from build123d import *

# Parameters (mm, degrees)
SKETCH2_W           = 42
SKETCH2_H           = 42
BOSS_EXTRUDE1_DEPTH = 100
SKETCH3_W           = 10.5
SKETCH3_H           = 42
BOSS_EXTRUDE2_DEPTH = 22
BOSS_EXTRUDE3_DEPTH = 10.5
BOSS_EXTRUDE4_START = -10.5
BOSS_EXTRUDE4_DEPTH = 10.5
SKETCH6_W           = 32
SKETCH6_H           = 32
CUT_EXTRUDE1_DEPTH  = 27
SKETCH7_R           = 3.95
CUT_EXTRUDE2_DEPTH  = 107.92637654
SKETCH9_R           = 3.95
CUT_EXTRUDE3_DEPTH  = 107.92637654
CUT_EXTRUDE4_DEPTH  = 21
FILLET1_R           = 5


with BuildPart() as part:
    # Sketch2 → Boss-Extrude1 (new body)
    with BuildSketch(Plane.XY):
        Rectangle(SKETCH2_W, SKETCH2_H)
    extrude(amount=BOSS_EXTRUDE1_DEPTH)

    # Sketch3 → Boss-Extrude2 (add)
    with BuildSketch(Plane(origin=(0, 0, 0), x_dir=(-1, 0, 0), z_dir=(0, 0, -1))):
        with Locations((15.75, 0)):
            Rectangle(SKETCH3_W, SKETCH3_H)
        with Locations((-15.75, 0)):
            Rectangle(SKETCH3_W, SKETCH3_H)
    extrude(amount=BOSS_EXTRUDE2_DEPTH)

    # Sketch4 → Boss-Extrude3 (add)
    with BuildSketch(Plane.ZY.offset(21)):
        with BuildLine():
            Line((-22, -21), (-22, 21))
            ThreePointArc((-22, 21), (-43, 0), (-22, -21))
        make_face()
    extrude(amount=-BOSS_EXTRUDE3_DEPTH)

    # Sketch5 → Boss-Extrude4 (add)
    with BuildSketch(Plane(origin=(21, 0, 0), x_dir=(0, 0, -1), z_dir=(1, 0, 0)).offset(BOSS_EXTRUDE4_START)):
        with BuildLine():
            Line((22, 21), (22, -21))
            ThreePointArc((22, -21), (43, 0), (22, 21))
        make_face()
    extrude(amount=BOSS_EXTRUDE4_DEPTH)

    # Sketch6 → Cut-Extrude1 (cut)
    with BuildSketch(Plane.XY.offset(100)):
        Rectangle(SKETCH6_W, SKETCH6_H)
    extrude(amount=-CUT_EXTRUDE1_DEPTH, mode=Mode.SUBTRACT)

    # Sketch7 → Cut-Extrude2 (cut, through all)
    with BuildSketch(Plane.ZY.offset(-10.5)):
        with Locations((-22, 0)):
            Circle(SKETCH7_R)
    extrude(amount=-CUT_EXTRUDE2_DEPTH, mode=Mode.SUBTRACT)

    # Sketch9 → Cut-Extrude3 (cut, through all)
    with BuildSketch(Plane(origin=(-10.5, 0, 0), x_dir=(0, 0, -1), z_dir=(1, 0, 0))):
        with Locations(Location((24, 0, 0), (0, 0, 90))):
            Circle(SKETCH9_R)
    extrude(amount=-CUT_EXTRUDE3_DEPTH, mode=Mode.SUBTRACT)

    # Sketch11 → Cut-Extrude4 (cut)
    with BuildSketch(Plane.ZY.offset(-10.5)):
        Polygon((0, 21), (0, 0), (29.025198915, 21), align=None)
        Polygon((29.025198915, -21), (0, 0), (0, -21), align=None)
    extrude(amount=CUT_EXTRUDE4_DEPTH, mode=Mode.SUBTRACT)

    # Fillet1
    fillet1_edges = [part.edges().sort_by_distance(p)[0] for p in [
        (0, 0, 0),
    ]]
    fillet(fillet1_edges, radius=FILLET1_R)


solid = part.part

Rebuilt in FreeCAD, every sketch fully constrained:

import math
import FreeCAD as App
import Part
import Sketcher
from FreeCAD import Vector
Q = App.Units.Quantity


def edges_at(feature, points):
    """Names of the edges that pass closest to the given points."""
    edges = feature.Shape.Edges
    near = lambda p: min(range(len(edges)), key=lambda i: edges[i].distToShape(Part.Vertex(*p))[0])
    return sorted({f"Edge{near(p) + 1}" for p in points})


def add_polygon(sketch, points):
    """Adds a closed chain of lines whose ends are joined by coincident constraints."""
    first, n = sketch.GeometryCount, len(points)
    for a, b in zip(points, points[1:] + points[:1]):
        sketch.addGeometry(Part.LineSegment(App.Vector(*a, 0), App.Vector(*b, 0)), False)
    for i in range(n):
        sketch.addConstraint(Sketcher.Constraint("Coincident", first + i, 2, first + (i + 1) % n, 1))

doc = App.newDocument("Part")
params = doc.addObject("Spreadsheet::Sheet", "Params")
for row, (alias, value) in enumerate([
    ("sketch1_width", "42 mm"),
    ("pad1_length", "100 mm"),
    ("sketch2_height", "42 mm"),
    ("sketch2_width", "10.5 mm"),
    ("pad2_length", "22 mm"),
    ("sketch3_radius", "21 mm"),
    ("pad3_length", "10.5 mm"),
    ("sketch4_radius", "21 mm"),
    ("pad4_length", "10.5 mm"),
    ("sketch5_width", "32 mm"),
    ("pocket1_length", "27 mm"),
    ("sketch6_diameter", "7.9 mm"),
    ("sketch7_diameter", "7.9 mm"),
    ("sketch8_width", "21 mm"),
    ("pocket4_length", "21 mm"),
    ("fillet_radius", "5 mm"),
], start=1):
    params.set(f"A{row}", alias)
    params.set(f"B{row}", "=" + value)
    params.setAlias(f"B{row}", alias)

body = doc.addObject("PartDesign::Body", "Body")

# Sketch on XY plane
sketch1 = doc.addObject("Sketcher::SketchObject", "Sketch")
body.addObject(sketch1)
sketch1.AttachmentSupport = (doc.XY_Plane, [""])
sketch1.MapMode = "FlatFace"
add_polygon(sketch1, [(-21, 21), (-21, -21), (21, -21), (21, 21)])  # lines 0-3
sketch1.addConstraint([
    Sketcher.Constraint("Vertical", 0),
    Sketcher.Constraint("Horizontal", 1),
    Sketcher.Constraint("Vertical", 2),
    Sketcher.Constraint("Horizontal", 3),
    Sketcher.Constraint("Symmetric", 0, 2, 2, 2, -1, 1),
    Sketcher.Constraint("Equal", 3, 0),
    Sketcher.Constraint("DistanceX", 1, 1, 1, 2, Q("42 mm")),
])
sketch1.setExpression("Constraints[10]", "Params.sketch1_width")
pad1 = doc.addObject("PartDesign::Pad", "Pad")
body.addObject(pad1)
pad1.Profile = sketch1
pad1.setExpression("Length", "Params.pad1_length")

# Sketch on XY plane
sketch2 = doc.addObject("Sketcher::SketchObject", "Sketch001")
body.addObject(sketch2)
sketch2.AttachmentSupport = (doc.XY_Plane, [""])
sketch2.MapMode = "FlatFace"
add_polygon(sketch2, [(-10, 21), (-10, -21), (-21, -21), (-21, 21)])  # lines 0-3
add_polygon(sketch2, [(21, 21), (21, -21), (10, -21), (10, 21)])  # lines 4-7
sketch2.addConstraint([
    Sketcher.Constraint("Vertical", 0),
    Sketcher.Constraint("Horizontal", 1),
    Sketcher.Constraint("Vertical", 2),
    Sketcher.Constraint("Horizontal", 3),
    Sketcher.Constraint("Vertical", 4),
    Sketcher.Constraint("Horizontal", 5),
    Sketcher.Constraint("Vertical", 6),
    Sketcher.Constraint("Horizontal", 7),
    Sketcher.Constraint("Symmetric", 2, 2, 4, 2, -1, 1),
    Sketcher.Constraint("Symmetric", 0, 2, 6, 2, -1, 1),
    Sketcher.Constraint("Horizontal", 1, 2, 4, 2),
    Sketcher.Constraint("DistanceY", 0, 2, 0, 1, Q("42 mm")),
    Sketcher.Constraint("DistanceX", 1, 2, 1, 1, Q("10.5 mm")),
    Sketcher.Constraint("DistanceX", 1, 2, -1, 1, Q("21 mm")),
])
sketch2.setExpression("Constraints[19]", "Params.sketch2_height")
sketch2.setExpression("Constraints[20]", "Params.sketch2_width")
pad2 = doc.addObject("PartDesign::Pad", "Pad001")
body.addObject(pad2)
pad2.Profile = sketch2
pad2.setExpression("Length", "Params.pad2_length")
pad2.Reversed = True

# Sketch on YZ plane
sketch3 = doc.addObject("Sketcher::SketchObject", "Sketch002")
body.addObject(sketch3)
sketch3.AttachmentSupport = (doc.YZ_Plane, [""])
sketch3.MapMode = "FlatFace"
sketch3.AttachmentOffset = App.Placement(Vector(0, 0, -21), App.Rotation())
sketch3.addGeometry([
    Part.LineSegment(Vector(-21, -22, 0), Vector(21, -22, 0)),
    Part.ArcOfCircle(Part.Circle(Vector(0, -22, 0), Vector(0, 0, 1), 21), math.radians(180), math.radians(360)),
], False)
sketch3.addConstraint([
    Sketcher.Constraint("Coincident", 0, 1, 1, 1),
    Sketcher.Constraint("Coincident", 1, 2, 0, 2),
    Sketcher.Constraint("Horizontal", 0),
    Sketcher.Constraint("PointOnObject", 1, 3, -2),
    Sketcher.Constraint("Horizontal", 1, 3, 0, 1),
    Sketcher.Constraint("Radius", 1, Q("21 mm")),
    Sketcher.Constraint("DistanceY", 1, 3, -1, 1, Q("22 mm")),
])
sketch3.setExpression("Constraints[5]", "Params.sketch3_radius")
pad3 = doc.addObject("PartDesign::Pad", "Pad002")
body.addObject(pad3)
pad3.Profile = sketch3
pad3.setExpression("Length", "Params.pad3_length")

# Sketch on YZ plane
sketch4 = doc.addObject("Sketcher::SketchObject", "Sketch003")
body.addObject(sketch4)
sketch4.AttachmentSupport = (doc.YZ_Plane, [""])
sketch4.MapMode = "FlatFace"
sketch4.AttachmentOffset = App.Placement(Vector(0, 0, 10.5), App.Rotation())
sketch4.addGeometry([
    Part.LineSegment(Vector(21, -22, 0), Vector(-21, -22, 0)),
    Part.ArcOfCircle(Part.Circle(Vector(0, -22, 0), Vector(0, 0, 1), 21), math.radians(180), math.radians(360)),
], False)
sketch4.addConstraint([
    Sketcher.Constraint("Coincident", 0, 1, 1, 2),
    Sketcher.Constraint("Coincident", 1, 1, 0, 2),
    Sketcher.Constraint("Horizontal", 0),
    Sketcher.Constraint("PointOnObject", 1, 3, -2),
    Sketcher.Constraint("Horizontal", 1, 3, 0, 1),
    Sketcher.Constraint("Radius", 1, Q("21 mm")),
    Sketcher.Constraint("DistanceY", 1, 3, -1, 1, Q("22 mm")),
])
sketch4.setExpression("Constraints[5]", "Params.sketch4_radius")
pad4 = doc.addObject("PartDesign::Pad", "Pad003")
body.addObject(pad4)
pad4.Profile = sketch4
pad4.setExpression("Length", "Params.pad4_length")

# Sketch on XY plane
sketch5 = doc.addObject("Sketcher::SketchObject", "Sketch004")
body.addObject(sketch5)
sketch5.AttachmentSupport = (doc.XY_Plane, [""])
sketch5.MapMode = "FlatFace"
sketch5.AttachmentOffset = App.Placement(Vector(0, 0, 100), App.Rotation())
add_polygon(sketch5, [(-16, 16), (-16, -16), (16, -16), (16, 16)])  # lines 0-3
sketch5.addConstraint([
    Sketcher.Constraint("Vertical", 0),
    Sketcher.Constraint("Horizontal", 1),
    Sketcher.Constraint("Vertical", 2),
    Sketcher.Constraint("Horizontal", 3),
    Sketcher.Constraint("Symmetric", 0, 2, 2, 2, -1, 1),
    Sketcher.Constraint("Equal", 3, 0),
    Sketcher.Constraint("DistanceX", 1, 1, 1, 2, Q("32 mm")),
])
sketch5.setExpression("Constraints[10]", "Params.sketch5_width")
pocket1 = doc.addObject("PartDesign::Pocket", "Pocket")
body.addObject(pocket1)
pocket1.Profile = sketch5
pocket1.setExpression("Length", "Params.pocket1_length")

# Sketch on YZ plane
sketch6 = doc.addObject("Sketcher::SketchObject", "Sketch005")
body.addObject(sketch6)
sketch6.AttachmentSupport = (doc.YZ_Plane, [""])
sketch6.MapMode = "FlatFace"
sketch6.AttachmentOffset = App.Placement(Vector(0, 0, 10.5), App.Rotation())
sketch6.addGeometry(Part.Circle(Vector(0, -22, 0), Vector(0, 0, 1), 4), False)
sketch6.addConstraint([
    Sketcher.Constraint("PointOnObject", 0, 3, -2),
    Sketcher.Constraint("Diameter", 0, Q("7.9 mm")),
    Sketcher.Constraint("DistanceY", 0, 3, -1, 1, Q("22 mm")),
])
sketch6.setExpression("Constraints[1]", "Params.sketch6_diameter")
pocket2 = doc.addObject("PartDesign::Pocket", "Pocket001")
body.addObject(pocket2)
pocket2.Profile = sketch6
pocket2.Type = "ThroughAll"
pocket2.Reversed = True

# Sketch on YZ plane
sketch7 = doc.addObject("Sketcher::SketchObject", "Sketch006")
body.addObject(sketch7)
sketch7.AttachmentSupport = (doc.YZ_Plane, [""])
sketch7.MapMode = "FlatFace"
sketch7.AttachmentOffset = App.Placement(Vector(0, 0, -10.5), App.Rotation())
sketch7.addGeometry(Part.Circle(Vector(0, -24, 0), Vector(0, 0, 1), 4), False)
sketch7.addConstraint([
    Sketcher.Constraint("PointOnObject", 0, 3, -2),
    Sketcher.Constraint("Diameter", 0, Q("7.9 mm")),
    Sketcher.Constraint("DistanceY", 0, 3, -1, 1, Q("24 mm")),
])
sketch7.setExpression("Constraints[1]", "Params.sketch7_diameter")
pocket3 = doc.addObject("PartDesign::Pocket", "Pocket002")
body.addObject(pocket3)
pocket3.Profile = sketch7
pocket3.Type = "ThroughAll"

# Sketch on YZ plane
sketch8 = doc.addObject("Sketcher::SketchObject", "Sketch007")
body.addObject(sketch8)
sketch8.AttachmentSupport = (doc.YZ_Plane, [""])
sketch8.MapMode = "FlatFace"
sketch8.AttachmentOffset = App.Placement(Vector(0, 0, 10.5), App.Rotation())
add_polygon(sketch8, [(21, 0), (0, 0), (21, 29)])  # lines 0-2
add_polygon(sketch8, [(-21, 29), (0, 0), (-21, 0)])  # lines 3-5
sketch8.addConstraint([
    Sketcher.Constraint("Horizontal", 0),
    Sketcher.Constraint("Vertical", 2),
    Sketcher.Constraint("Horizontal", 4),
    Sketcher.Constraint("Vertical", 5),
    Sketcher.Constraint("Coincident", 0, 2, -1, 1),
    Sketcher.Constraint("Coincident", 3, 2, -1, 1),
    Sketcher.Constraint("Symmetric", 1, 2, 5, 2, -2),
    Sketcher.Constraint("DistanceX", 0, 2, 0, 1, Q("21 mm")),
    Sketcher.Constraint("DistanceY", 2, 2, 2, 1, Q("29.025199 mm")),
])
sketch8.setExpression("Constraints[13]", "Params.sketch8_width")
pocket4 = doc.addObject("PartDesign::Pocket", "Pocket003")
body.addObject(pocket4)
pocket4.Profile = sketch8
pocket4.setExpression("Length", "Params.pocket4_length")
doc.recompute()

fillet = doc.addObject("PartDesign::Fillet", "Fillet")
body.addObject(fillet)
fillet.Base = (pocket4, edges_at(pocket4, [(0, 0, 0)]))
fillet.setExpression("Radius", "Params.fillet_radius")

doc.recompute()
